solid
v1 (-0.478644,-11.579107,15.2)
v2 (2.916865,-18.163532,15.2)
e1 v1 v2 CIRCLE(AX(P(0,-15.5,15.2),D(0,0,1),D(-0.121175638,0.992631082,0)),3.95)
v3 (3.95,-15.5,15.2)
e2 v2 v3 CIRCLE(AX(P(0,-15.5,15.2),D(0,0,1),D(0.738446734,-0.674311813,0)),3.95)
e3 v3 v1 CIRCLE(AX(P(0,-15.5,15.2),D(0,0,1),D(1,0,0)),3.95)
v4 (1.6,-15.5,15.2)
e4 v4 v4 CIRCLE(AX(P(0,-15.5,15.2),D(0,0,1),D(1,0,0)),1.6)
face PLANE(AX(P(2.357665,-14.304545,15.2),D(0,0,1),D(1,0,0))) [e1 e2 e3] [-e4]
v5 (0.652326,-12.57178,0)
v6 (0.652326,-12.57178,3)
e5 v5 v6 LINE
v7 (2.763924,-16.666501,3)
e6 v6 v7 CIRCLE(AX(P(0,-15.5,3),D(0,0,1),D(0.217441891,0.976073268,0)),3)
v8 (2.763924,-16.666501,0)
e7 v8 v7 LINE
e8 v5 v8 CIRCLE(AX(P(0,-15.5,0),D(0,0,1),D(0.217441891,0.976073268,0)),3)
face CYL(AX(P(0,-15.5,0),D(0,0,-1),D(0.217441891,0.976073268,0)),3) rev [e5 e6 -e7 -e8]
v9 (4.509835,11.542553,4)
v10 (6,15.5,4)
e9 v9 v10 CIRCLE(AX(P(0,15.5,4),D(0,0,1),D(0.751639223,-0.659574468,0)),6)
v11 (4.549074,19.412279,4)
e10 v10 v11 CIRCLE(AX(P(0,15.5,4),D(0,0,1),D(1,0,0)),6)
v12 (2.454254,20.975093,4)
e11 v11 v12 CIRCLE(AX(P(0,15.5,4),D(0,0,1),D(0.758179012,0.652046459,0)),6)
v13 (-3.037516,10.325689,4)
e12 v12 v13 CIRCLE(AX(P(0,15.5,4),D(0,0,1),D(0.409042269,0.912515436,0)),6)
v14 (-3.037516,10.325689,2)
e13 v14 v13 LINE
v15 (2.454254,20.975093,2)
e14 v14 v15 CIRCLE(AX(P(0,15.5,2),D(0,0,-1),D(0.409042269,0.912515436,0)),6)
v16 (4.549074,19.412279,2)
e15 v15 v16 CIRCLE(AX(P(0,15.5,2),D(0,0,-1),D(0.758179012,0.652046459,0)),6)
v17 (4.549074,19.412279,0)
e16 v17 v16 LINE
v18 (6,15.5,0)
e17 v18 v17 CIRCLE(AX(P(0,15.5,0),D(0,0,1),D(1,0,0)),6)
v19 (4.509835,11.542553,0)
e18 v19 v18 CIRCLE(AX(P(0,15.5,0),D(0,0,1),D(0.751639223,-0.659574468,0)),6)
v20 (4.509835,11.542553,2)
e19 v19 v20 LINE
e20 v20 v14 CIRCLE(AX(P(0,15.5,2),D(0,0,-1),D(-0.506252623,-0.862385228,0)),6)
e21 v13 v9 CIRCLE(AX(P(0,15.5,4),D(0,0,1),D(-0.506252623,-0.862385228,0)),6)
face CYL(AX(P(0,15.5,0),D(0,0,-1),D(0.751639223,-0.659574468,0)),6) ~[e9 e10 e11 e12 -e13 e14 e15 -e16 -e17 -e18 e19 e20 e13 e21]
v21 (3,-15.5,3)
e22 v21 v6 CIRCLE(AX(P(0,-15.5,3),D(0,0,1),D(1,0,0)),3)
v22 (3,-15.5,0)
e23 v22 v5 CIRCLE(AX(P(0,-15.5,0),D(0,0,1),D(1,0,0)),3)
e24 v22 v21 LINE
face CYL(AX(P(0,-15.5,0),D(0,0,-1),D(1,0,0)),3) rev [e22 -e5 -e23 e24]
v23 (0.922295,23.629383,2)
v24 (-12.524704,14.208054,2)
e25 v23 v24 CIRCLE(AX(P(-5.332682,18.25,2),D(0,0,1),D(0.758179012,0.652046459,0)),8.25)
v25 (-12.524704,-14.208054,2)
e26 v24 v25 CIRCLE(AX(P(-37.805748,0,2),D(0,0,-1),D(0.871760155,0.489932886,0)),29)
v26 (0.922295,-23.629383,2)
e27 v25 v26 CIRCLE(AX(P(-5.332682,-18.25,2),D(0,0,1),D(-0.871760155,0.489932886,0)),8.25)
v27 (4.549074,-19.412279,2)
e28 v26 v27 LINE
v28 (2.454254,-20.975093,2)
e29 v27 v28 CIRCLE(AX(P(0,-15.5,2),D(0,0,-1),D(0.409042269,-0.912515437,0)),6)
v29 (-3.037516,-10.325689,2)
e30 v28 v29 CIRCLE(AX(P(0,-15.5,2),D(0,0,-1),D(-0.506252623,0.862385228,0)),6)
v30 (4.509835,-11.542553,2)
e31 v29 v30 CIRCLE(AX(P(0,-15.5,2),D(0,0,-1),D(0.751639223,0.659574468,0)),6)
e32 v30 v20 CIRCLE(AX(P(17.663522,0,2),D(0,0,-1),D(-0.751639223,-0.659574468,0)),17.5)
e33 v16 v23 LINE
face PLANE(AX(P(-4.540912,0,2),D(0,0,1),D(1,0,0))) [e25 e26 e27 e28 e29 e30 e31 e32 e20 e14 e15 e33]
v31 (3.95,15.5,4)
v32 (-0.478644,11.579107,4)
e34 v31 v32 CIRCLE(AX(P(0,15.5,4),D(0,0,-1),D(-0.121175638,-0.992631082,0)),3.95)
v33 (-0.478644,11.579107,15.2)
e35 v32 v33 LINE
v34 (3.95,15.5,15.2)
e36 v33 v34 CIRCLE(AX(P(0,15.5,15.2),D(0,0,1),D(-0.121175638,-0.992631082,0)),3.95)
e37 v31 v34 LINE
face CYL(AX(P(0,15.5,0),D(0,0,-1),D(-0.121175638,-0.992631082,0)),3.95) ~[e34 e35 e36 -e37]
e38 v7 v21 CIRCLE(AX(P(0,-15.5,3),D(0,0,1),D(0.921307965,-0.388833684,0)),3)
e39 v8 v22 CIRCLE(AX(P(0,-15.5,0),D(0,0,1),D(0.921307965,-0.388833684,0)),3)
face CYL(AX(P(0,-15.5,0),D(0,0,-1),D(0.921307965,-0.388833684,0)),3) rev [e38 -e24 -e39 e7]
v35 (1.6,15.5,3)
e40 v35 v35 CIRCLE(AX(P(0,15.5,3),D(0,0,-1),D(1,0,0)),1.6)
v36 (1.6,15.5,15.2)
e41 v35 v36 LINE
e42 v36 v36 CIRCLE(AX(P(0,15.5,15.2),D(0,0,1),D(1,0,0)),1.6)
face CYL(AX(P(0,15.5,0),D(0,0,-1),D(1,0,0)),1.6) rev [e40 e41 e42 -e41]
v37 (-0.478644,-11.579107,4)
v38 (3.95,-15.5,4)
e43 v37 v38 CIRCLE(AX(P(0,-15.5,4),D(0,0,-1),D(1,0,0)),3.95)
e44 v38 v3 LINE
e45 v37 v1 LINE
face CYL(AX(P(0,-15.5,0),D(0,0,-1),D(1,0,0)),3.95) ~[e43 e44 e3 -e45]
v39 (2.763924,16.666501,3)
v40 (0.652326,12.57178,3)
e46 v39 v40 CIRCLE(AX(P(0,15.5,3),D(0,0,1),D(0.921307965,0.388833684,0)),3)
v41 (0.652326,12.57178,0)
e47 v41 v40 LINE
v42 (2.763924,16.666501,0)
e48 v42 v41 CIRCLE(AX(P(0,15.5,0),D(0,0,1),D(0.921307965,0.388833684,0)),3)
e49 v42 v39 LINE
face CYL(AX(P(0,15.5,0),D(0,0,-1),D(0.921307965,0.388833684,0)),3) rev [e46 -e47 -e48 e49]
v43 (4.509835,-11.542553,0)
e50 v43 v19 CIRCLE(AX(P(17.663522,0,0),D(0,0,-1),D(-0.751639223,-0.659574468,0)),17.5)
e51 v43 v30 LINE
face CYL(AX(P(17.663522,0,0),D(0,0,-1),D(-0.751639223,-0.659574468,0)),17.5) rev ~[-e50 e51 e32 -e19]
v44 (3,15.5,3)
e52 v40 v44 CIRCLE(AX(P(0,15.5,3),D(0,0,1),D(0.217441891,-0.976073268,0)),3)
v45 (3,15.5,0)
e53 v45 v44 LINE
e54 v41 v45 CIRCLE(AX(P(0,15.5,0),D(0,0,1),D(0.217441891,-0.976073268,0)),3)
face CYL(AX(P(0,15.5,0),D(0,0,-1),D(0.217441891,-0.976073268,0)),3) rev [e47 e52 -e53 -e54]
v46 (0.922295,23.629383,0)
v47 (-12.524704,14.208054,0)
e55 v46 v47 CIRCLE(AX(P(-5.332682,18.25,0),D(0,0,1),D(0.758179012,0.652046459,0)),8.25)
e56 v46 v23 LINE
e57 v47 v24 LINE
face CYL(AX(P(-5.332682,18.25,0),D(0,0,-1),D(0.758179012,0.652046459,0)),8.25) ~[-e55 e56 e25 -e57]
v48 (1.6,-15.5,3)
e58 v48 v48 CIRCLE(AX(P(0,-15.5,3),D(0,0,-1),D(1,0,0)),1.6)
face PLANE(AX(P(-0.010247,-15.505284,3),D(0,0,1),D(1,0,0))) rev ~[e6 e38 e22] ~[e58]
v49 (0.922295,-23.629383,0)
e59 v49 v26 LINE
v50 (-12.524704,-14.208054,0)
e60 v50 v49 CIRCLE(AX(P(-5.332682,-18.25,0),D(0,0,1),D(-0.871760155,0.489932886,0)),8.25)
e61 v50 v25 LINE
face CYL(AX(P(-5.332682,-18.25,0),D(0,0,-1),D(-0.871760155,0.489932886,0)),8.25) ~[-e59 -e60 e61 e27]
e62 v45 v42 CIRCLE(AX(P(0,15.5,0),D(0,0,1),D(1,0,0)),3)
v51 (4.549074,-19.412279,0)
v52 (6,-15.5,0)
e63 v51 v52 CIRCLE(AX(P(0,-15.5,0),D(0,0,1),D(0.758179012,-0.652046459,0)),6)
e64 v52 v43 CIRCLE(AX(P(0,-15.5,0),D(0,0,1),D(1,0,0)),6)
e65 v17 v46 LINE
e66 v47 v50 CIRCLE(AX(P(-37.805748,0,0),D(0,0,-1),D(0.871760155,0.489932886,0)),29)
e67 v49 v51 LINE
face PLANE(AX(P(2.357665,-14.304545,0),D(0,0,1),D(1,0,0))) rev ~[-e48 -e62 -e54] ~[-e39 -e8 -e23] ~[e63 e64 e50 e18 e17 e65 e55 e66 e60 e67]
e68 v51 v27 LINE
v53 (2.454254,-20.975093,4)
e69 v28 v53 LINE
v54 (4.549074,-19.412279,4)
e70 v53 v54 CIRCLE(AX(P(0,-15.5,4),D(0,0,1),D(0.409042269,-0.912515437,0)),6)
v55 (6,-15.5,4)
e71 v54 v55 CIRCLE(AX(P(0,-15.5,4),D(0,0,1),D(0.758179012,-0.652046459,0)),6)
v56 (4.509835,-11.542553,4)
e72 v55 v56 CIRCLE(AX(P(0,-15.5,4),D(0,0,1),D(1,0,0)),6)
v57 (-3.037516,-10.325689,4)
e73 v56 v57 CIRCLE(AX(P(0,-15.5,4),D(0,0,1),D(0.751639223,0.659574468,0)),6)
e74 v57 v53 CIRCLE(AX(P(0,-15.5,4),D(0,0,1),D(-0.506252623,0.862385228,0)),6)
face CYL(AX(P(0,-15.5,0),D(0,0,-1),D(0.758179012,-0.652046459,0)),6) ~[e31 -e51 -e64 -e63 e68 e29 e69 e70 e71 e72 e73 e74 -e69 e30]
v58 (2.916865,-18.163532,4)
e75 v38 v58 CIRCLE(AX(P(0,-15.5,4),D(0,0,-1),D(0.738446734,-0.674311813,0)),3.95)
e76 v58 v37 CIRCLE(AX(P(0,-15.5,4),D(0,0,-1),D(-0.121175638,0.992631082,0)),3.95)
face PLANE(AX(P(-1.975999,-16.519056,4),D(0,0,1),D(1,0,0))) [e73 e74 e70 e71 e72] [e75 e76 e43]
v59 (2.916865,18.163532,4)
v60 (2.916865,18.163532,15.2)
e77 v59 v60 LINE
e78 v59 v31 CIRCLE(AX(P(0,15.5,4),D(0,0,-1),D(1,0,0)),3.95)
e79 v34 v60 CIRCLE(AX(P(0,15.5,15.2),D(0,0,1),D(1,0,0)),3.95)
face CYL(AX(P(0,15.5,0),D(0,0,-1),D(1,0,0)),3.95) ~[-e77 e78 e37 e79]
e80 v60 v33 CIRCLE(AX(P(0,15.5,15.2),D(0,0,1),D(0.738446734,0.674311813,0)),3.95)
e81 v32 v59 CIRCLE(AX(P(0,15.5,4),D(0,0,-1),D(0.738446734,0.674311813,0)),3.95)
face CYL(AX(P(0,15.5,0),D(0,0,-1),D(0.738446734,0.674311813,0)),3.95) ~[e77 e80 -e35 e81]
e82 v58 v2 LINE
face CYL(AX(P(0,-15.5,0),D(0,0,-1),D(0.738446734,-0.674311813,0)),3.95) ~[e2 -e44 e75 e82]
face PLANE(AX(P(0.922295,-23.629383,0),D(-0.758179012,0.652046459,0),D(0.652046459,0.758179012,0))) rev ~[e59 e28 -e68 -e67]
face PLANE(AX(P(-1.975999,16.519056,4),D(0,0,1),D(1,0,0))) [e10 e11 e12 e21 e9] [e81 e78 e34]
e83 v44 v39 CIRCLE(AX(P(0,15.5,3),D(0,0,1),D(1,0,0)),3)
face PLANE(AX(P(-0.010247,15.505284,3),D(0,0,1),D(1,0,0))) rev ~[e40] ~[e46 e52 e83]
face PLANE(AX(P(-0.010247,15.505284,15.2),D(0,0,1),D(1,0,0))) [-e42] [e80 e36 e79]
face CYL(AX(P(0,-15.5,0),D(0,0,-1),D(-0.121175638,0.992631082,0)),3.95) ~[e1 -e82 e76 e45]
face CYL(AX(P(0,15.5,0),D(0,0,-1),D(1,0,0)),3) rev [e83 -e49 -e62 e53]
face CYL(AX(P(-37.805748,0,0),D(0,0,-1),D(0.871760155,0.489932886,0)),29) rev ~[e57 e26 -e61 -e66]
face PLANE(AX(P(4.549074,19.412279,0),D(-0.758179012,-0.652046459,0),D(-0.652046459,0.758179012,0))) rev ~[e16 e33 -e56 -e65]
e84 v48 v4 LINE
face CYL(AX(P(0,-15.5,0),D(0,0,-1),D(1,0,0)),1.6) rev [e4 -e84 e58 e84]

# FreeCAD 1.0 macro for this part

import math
import FreeCAD as App
import Part
import Sketcher

V = App.Vector
Q = App.Units.Quantity

doc = App.newDocument("Part")
body = doc.addObject("PartDesign::Body", "Body")

# Sketch on XY plane
sketch1 = body.newObject("Sketcher::SketchObject", "Sketch")
sketch1.AttachmentSupport = (doc.getObject("XY_Plane"), [""])
sketch1.MapMode = "FlatFace"
sketch1.addGeometry([
    Part.ArcOfCircle(Part.Circle(V(-5.3, -18.2, 0), V(0, 0, 1), 8.2), math.radians(151), math.radians(319)),  # 0
    Part.LineSegment(V(0.9, -23.6, 0), V(4.5, -19.4, 0)),  # 1
    Part.ArcOfCircle(Part.Circle(V(0, -15.5, 0), V(0, 0, 1), 6), math.radians(-41), math.radians(0)),  # 2
    Part.ArcOfCircle(Part.Circle(V(0, -15.5, 0), V(0, 0, 1), 6), math.radians(0), math.radians(41)),  # 3
    Part.ArcOfCircle(Part.Circle(V(17.7, 0, 0), V(0, 0, 1), 17.5), math.radians(139), math.radians(221)),  # 4
    Part.ArcOfCircle(Part.Circle(V(0, 15.5, 0), V(0, 0, 1), 6), math.radians(-41), math.radians(0)),  # 5
    Part.ArcOfCircle(Part.Circle(V(0, 15.5, 0), V(0, 0, 1), 6), math.radians(0), math.radians(41)),  # 6
    Part.LineSegment(V(4.5, 19.4, 0), V(0.9, 23.6, 0)),  # 7
    Part.ArcOfCircle(Part.Circle(V(-5.3, 18.2, 0), V(0, 0, 1), 8.2), math.radians(41), math.radians(209)),  # 8
    Part.ArcOfCircle(Part.Circle(V(-37.8, 0, 0), V(0, 0, 1), 29), math.radians(-29), math.radians(29)),  # 9
], False)
sketch1.addConstraint([
    Sketcher.Constraint("Tangent", 0, 2, 1, 1),
    Sketcher.Constraint("Tangent", 1, 2, 2, 1),
    Sketcher.Constraint("Tangent", 2, 2, 3, 1),
    Sketcher.Constraint("Tangent", 3, 2, 4, 2),
    Sketcher.Constraint("Tangent", 4, 1, 5, 1),
    Sketcher.Constraint("Tangent", 5, 2, 6, 1),
    Sketcher.Constraint("Tangent", 6, 2, 7, 1),
    Sketcher.Constraint("Tangent", 7, 2, 8, 1),
    Sketcher.Constraint("Tangent", 8, 2, 9, 2),
    Sketcher.Constraint("Tangent", 9, 1, 0, 1),
    Sketcher.Constraint("Equal", 2, 3),
    Sketcher.Constraint("Equal", 3, 5),
    Sketcher.Constraint("Equal", 5, 6),
    Sketcher.Constraint("Equal", 0, 8),
    Sketcher.Constraint("Symmetric", 2, 3, 5, 3, -1, 1),
    Sketcher.Constraint("Symmetric", 0, 3, 8, 3, -1),
    Sketcher.Constraint("Symmetric", 2, 2, 5, 2, -1),
    Sketcher.Constraint("Horizontal", 3, 3, 2, 2),
    Sketcher.Constraint("Radius", 2, Q("6 mm")),
    Sketcher.Constraint("Radius", 9, Q("29 mm")),
    Sketcher.Constraint("Radius", 4, Q("17.5 mm")),
    Sketcher.Constraint("Radius", 0, Q("8.25 mm")),
    Sketcher.Constraint("DistanceY", 2, 3, 5, 3, Q("31 mm")),
    Sketcher.Constraint("DistanceY", 0, 3, -1, 1, Q("18.25 mm")),
    Sketcher.Constraint("DistanceX", 8, 2, 7, 2, Q("13.446998 mm")),
])
pad1 = body.newObject("PartDesign::Pad", "Pad")
pad1.Profile = sketch1
pad1.Length = 2

# Sketch on XY plane
sketch2 = body.newObject("Sketcher::SketchObject", "Sketch001")
sketch2.AttachmentSupport = (doc.getObject("XY_Plane"), [""])
sketch2.MapMode = "FlatFace"
sketch2.addGeometry([
    Part.ArcOfCircle(Part.Circle(V(0, -15.5, 0), V(0, 0, 1), 6), math.radians(120), math.radians(294)),  # 0
    Part.ArcOfCircle(Part.Circle(V(0, -15.5, 0), V(0, 0, 1), 6), math.radians(-66), math.radians(-41)),  # 1
    Part.ArcOfCircle(Part.Circle(V(0, -15.5, 0), V(0, 0, 1), 6), math.radians(-41), math.radians(0)),  # 2
    Part.ArcOfCircle(Part.Circle(V(0, -15.5, 0), V(0, 0, 1), 6), math.radians(0), math.radians(41)),  # 3
    Part.ArcOfCircle(Part.Circle(V(0, -15.5, 0), V(0, 0, 1), 6), math.radians(41), math.radians(120)),  # 4
    Part.ArcOfCircle(Part.Circle(V(0, 15.5, 0), V(0, 0, 1), 6), math.radians(66), math.radians(240)),  # 5
    Part.ArcOfCircle(Part.Circle(V(0, 15.5, 0), V(0, 0, 1), 6), math.radians(-120), math.radians(-41)),  # 6
    Part.ArcOfCircle(Part.Circle(V(0, 15.5, 0), V(0, 0, 1), 6), math.radians(-41), math.radians(0)),  # 7
    Part.ArcOfCircle(Part.Circle(V(0, 15.5, 0), V(0, 0, 1), 6), math.radians(0), math.radians(41)),  # 8
    Part.ArcOfCircle(Part.Circle(V(0, 15.5, 0), V(0, 0, 1), 6), math.radians(41), math.radians(66)),  # 9
], False)
sketch2.addConstraint([
    Sketcher.Constraint("Tangent", 0, 2, 1, 1),
    Sketcher.Constraint("Tangent", 1, 2, 2, 1),
    Sketcher.Constraint("Tangent", 2, 2, 3, 1),
    Sketcher.Constraint("Tangent", 3, 2, 4, 1),
    Sketcher.Constraint("Tangent", 4, 2, 0, 1),
    Sketcher.Constraint("Tangent", 5, 2, 6, 1),
    Sketcher.Constraint("Tangent", 6, 2, 7, 1),
    Sketcher.Constraint("Tangent", 7, 2, 8, 1),
    Sketcher.Constraint("Tangent", 8, 2, 9, 1),
    Sketcher.Constraint("Tangent", 9, 2, 5, 1),
    Sketcher.Constraint("Coincident", 2, 3, 0, 3),
    Sketcher.Constraint("Coincident", 7, 3, 5, 3),
    Sketcher.Constraint("Equal", 4, 5),
    Sketcher.Constraint("Symmetric", 0, 3, 5, 3, -1, 1),
    Sketcher.Constraint("Symmetric", 4, 2, 5, 2, -1),
    Sketcher.Constraint("Horizontal", 4, 3, 2, 2),
    Sketcher.Constraint("Horizontal", 9, 3, 7, 2),
    Sketcher.Constraint("Vertical", 3, 2, 6, 2),
    Sketcher.Constraint("Vertical", 1, 2, 8, 2),
    Sketcher.Constraint("Vertical", 0, 2, 9, 2),
    Sketcher.Constraint("Radius", 0, Q("6 mm")),
    Sketcher.Constraint("DistanceY", 0, 3, 5, 3, Q("31 mm")),
    Sketcher.Constraint("DistanceY", 1, 2, -1, 1, Q("19.412279 mm")),
    Sketcher.Constraint("DistanceY", 4, 2, -1, 1, Q("10.325689 mm")),
    Sketcher.Constraint("DistanceX", 0, 2, 1, 2, Q("2.09482 mm")),
    Sketcher.Constraint("DistanceX", -1, 1, 3, 2, Q("4.509835 mm")),
])
pad2 = body.newObject("PartDesign::Pad", "Pad001")
pad2.Profile = sketch2
pad2.Length = 4

# Sketch on XY plane
sketch3 = body.newObject("Sketcher::SketchObject", "Sketch002")
sketch3.AttachmentSupport = (doc.getObject("XY_Plane"), [""])
sketch3.MapMode = "FlatFace"
sketch3.addGeometry([
    Part.ArcOfCircle(Part.Circle(V(0, -15.5, 0), V(0, 0, 1), 4), math.radians(0), math.radians(97)),  # 0
    Part.ArcOfCircle(Part.Circle(V(0, -15.5, 0), V(0, 0, 1), 4), math.radians(97), math.radians(318)),  # 1
    Part.ArcOfCircle(Part.Circle(V(0, -15.5, 0), V(0, 0, 1), 4), math.radians(-42), math.radians(0)),  # 2
    Part.ArcOfCircle(Part.Circle(V(0, 15.5, 0), V(0, 0, 1), 4), math.radians(42), math.radians(263)),  # 3
    Part.ArcOfCircle(Part.Circle(V(0, 15.5, 0), V(0, 0, 1), 4), math.radians(-97), math.radians(0)),  # 4
    Part.ArcOfCircle(Part.Circle(V(0, 15.5, 0), V(0, 0, 1), 4), math.radians(0), math.radians(42)),  # 5
], False)
sketch3.addConstraint([
    Sketcher.Constraint("Tangent", 0, 2, 1, 1),
    Sketcher.Constraint("Tangent", 1, 2, 2, 1),
    Sketcher.Constraint("Tangent", 2, 2, 0, 1),
    Sketcher.Constraint("Tangent", 3, 2, 4, 1),
    Sketcher.Constraint("Tangent", 4, 2, 5, 1),
    Sketcher.Constraint("Tangent", 5, 2, 3, 1),
    Sketcher.Constraint("Equal", 2, 3),
    Sketcher.Constraint("Symmetric", 0, 3, 3, 3, -1, 1),
    Sketcher.Constraint("Symmetric", 0, 2, 3, 2, -1),
    Sketcher.Constraint("Horizontal", 1, 3, 2, 2),
    Sketcher.Constraint("Horizontal", 5, 3, 4, 2),
    Sketcher.Constraint("Vertical", 1, 2, 5, 2),
    Sketcher.Constraint("Radius", 0, Q("3.95 mm")),
    Sketcher.Constraint("DistanceY", 0, 3, 3, 3, Q("31 mm")),
    Sketcher.Constraint("DistanceY", 1, 2, -1, 1, Q("18.163532 mm")),
    Sketcher.Constraint("DistanceX", 0, 2, 1, 2, Q("3.395508 mm")),
])
pad3 = body.newObject("PartDesign::Pad", "Pad002")
pad3.Profile = sketch3
pad3.Length = 15.2

# Sketch on XY plane
sketch4 = body.newObject("Sketcher::SketchObject", "Sketch003")
sketch4.AttachmentSupport = (doc.getObject("XY_Plane"), [""])
sketch4.MapMode = "FlatFace"
sketch4.addGeometry([
    Part.Circle(V(0, -15.5, 0), V(0, 0, 1), 1.6),
    Part.Circle(V(0, 15.5, 0), V(0, 0, 1), 1.6),
], False)
sketch4.addConstraint([
    Sketcher.Constraint("Equal", 0, 1),
    Sketcher.Constraint("Symmetric", 0, 3, 1, 3, -1, 1),
    Sketcher.Constraint("PointOnObject", 0, 3, -2),
    Sketcher.Constraint("Diameter", 0, Q("3.2 mm")),
    Sketcher.Constraint("DistanceY", 0, 3, 1, 3, Q("31 mm")),
])
pocket1 = body.newObject("PartDesign::Pocket", "Pocket")
pocket1.Profile = sketch4
pocket1.Type = "ThroughAll"
pocket1.Reversed = True

# Sketch on XY plane
sketch5 = body.newObject("Sketcher::SketchObject", "Sketch004")
sketch5.AttachmentSupport = (doc.getObject("XY_Plane"), [""])
sketch5.MapMode = "FlatFace"
sketch5.addGeometry([
    Part.ArcOfCircle(Part.Circle(V(0, 15.5, 0), V(0, 0, 1), 3), math.radians(23), math.radians(283)),  # 0
    Part.ArcOfCircle(Part.Circle(V(0, 15.5, 0), V(0, 0, 1), 3), math.radians(-77), math.radians(0)),  # 1
    Part.ArcOfCircle(Part.Circle(V(0, 15.5, 0), V(0, 0, 1), 3), math.radians(0), math.radians(23)),  # 2
    Part.ArcOfCircle(Part.Circle(V(0, -15.5, 0), V(0, 0, 1), 3), math.radians(77), math.radians(337)),  # 3
    Part.ArcOfCircle(Part.Circle(V(0, -15.5, 0), V(0, 0, 1), 3), math.radians(-23), math.radians(0)),  # 4
    Part.ArcOfCircle(Part.Circle(V(0, -15.5, 0), V(0, 0, 1), 3), math.radians(0), math.radians(77)),  # 5
], False)
sketch5.addConstraint([
    Sketcher.Constraint("Tangent", 0, 2, 1, 1),
    Sketcher.Constraint("Tangent", 1, 2, 2, 1),
    Sketcher.Constraint("Tangent", 2, 2, 0, 1),
    Sketcher.Constraint("Tangent", 3, 2, 4, 1),
    Sketcher.Constraint("Tangent", 4, 2, 5, 1),
    Sketcher.Constraint("Tangent", 5, 2, 3, 1),
    Sketcher.Constraint("Equal", 2, 3),
    Sketcher.Constraint("Symmetric", 0, 3, 3, 3, -1, 1),
    Sketcher.Constraint("Symmetric", 2, 2, 3, 2, -1),
    Sketcher.Constraint("Horizontal", 2, 3, 1, 2),
    Sketcher.Constraint("Horizontal", 5, 3, 4, 2),
    Sketcher.Constraint("Vertical", 0, 2, 5, 2),
    Sketcher.Constraint("Radius", 0, Q("3 mm")),
    Sketcher.Constraint("DistanceY", 3, 3, 0, 3, Q("31 mm")),
    Sketcher.Constraint("DistanceY", -1, 1, 2, 2, Q("16.666501 mm")),
    Sketcher.Constraint("DistanceX", 0, 2, 2, 2, Q("2.111598 mm")),
])
pocket2 = body.newObject("PartDesign::Pocket", "Pocket001")
pocket2.Profile = sketch5
pocket2.Length = 3
pocket2.Reversed = True

doc.recompute()
